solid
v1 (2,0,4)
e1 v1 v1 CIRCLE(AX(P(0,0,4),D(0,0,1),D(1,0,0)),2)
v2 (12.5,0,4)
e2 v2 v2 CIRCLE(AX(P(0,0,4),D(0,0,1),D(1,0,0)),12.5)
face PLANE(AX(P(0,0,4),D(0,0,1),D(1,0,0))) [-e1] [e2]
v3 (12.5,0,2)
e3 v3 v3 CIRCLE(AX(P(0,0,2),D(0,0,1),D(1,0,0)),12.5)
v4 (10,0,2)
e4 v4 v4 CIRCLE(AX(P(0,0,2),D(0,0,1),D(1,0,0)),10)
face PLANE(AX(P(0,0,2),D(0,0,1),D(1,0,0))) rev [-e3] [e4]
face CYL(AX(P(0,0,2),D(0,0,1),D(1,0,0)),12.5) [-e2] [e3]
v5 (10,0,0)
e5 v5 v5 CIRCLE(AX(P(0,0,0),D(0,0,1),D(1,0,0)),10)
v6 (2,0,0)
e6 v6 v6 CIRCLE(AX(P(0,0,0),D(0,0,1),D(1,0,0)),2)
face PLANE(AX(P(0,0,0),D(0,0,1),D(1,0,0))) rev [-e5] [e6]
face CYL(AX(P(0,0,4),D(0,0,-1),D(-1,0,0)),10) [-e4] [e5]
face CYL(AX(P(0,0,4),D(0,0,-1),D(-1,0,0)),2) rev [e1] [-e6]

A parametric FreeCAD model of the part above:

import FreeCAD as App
import Part
import Sketcher

V = App.Vector
Q = App.Units.Quantity

doc = App.newDocument("Part")
body = doc.addObject("PartDesign::Body", "Body")

# Sketch on XY plane
sketch1 = doc.addObject("Sketcher::SketchObject", "Sketch")
body.addObject(sketch1)
sketch1.AttachmentSupport = (doc.XY_Plane, [""])
sketch1.MapMode = "FlatFace"
sketch1.addGeometry([
    Part.Circle(V(0, 0, 0), V(0, 0, 1), 10),
    Part.Circle(V(0, 0, 0), V(0, 0, 1), 2),
], False)
sketch1.addConstraint([
    Sketcher.Constraint("Coincident", 0, 3, -1, 1),
    Sketcher.Constraint("Coincident", 1, 3, -1, 1),
    Sketcher.Constraint("Diameter", 0, Q("20 mm")),
    Sketcher.Constraint("Diameter", 1, Q("4 mm")),
])
pad1 = doc.addObject("PartDesign::Pad", "Pad")
body.addObject(pad1)
pad1.Profile = sketch1
pad1.Length = 4

# Sketch on XY plane
sketch2 = doc.addObject("Sketcher::SketchObject", "Sketch001")
body.addObject(sketch2)
sketch2.AttachmentSupport = (doc.XY_Plane, [""])
sketch2.MapMode = "FlatFace"
sketch2.AttachmentOffset = App.Placement(V(0, 0, 2), App.Rotation())
sketch2.addGeometry([
    Part.Circle(V(0, 0, 0), V(0, 0, 1), 12.5),
    Part.Circle(V(0, 0, 0), V(0, 0, 1), 10),
], False)
sketch2.addConstraint([
    Sketcher.Constraint("Coincident", 0, 3, -1, 1),
    Sketcher.Constraint("Coincident", 1, 3, -1, 1),
    Sketcher.Constraint("Diameter", 0, Q("25 mm")),
    Sketcher.Constraint("Diameter", 1, Q("20 mm")),
])
pad2 = doc.addObject("PartDesign::Pad", "Pad001")
body.addObject(pad2)
pad2.Profile = sketch2
pad2.Length = 2

doc.recompute()
